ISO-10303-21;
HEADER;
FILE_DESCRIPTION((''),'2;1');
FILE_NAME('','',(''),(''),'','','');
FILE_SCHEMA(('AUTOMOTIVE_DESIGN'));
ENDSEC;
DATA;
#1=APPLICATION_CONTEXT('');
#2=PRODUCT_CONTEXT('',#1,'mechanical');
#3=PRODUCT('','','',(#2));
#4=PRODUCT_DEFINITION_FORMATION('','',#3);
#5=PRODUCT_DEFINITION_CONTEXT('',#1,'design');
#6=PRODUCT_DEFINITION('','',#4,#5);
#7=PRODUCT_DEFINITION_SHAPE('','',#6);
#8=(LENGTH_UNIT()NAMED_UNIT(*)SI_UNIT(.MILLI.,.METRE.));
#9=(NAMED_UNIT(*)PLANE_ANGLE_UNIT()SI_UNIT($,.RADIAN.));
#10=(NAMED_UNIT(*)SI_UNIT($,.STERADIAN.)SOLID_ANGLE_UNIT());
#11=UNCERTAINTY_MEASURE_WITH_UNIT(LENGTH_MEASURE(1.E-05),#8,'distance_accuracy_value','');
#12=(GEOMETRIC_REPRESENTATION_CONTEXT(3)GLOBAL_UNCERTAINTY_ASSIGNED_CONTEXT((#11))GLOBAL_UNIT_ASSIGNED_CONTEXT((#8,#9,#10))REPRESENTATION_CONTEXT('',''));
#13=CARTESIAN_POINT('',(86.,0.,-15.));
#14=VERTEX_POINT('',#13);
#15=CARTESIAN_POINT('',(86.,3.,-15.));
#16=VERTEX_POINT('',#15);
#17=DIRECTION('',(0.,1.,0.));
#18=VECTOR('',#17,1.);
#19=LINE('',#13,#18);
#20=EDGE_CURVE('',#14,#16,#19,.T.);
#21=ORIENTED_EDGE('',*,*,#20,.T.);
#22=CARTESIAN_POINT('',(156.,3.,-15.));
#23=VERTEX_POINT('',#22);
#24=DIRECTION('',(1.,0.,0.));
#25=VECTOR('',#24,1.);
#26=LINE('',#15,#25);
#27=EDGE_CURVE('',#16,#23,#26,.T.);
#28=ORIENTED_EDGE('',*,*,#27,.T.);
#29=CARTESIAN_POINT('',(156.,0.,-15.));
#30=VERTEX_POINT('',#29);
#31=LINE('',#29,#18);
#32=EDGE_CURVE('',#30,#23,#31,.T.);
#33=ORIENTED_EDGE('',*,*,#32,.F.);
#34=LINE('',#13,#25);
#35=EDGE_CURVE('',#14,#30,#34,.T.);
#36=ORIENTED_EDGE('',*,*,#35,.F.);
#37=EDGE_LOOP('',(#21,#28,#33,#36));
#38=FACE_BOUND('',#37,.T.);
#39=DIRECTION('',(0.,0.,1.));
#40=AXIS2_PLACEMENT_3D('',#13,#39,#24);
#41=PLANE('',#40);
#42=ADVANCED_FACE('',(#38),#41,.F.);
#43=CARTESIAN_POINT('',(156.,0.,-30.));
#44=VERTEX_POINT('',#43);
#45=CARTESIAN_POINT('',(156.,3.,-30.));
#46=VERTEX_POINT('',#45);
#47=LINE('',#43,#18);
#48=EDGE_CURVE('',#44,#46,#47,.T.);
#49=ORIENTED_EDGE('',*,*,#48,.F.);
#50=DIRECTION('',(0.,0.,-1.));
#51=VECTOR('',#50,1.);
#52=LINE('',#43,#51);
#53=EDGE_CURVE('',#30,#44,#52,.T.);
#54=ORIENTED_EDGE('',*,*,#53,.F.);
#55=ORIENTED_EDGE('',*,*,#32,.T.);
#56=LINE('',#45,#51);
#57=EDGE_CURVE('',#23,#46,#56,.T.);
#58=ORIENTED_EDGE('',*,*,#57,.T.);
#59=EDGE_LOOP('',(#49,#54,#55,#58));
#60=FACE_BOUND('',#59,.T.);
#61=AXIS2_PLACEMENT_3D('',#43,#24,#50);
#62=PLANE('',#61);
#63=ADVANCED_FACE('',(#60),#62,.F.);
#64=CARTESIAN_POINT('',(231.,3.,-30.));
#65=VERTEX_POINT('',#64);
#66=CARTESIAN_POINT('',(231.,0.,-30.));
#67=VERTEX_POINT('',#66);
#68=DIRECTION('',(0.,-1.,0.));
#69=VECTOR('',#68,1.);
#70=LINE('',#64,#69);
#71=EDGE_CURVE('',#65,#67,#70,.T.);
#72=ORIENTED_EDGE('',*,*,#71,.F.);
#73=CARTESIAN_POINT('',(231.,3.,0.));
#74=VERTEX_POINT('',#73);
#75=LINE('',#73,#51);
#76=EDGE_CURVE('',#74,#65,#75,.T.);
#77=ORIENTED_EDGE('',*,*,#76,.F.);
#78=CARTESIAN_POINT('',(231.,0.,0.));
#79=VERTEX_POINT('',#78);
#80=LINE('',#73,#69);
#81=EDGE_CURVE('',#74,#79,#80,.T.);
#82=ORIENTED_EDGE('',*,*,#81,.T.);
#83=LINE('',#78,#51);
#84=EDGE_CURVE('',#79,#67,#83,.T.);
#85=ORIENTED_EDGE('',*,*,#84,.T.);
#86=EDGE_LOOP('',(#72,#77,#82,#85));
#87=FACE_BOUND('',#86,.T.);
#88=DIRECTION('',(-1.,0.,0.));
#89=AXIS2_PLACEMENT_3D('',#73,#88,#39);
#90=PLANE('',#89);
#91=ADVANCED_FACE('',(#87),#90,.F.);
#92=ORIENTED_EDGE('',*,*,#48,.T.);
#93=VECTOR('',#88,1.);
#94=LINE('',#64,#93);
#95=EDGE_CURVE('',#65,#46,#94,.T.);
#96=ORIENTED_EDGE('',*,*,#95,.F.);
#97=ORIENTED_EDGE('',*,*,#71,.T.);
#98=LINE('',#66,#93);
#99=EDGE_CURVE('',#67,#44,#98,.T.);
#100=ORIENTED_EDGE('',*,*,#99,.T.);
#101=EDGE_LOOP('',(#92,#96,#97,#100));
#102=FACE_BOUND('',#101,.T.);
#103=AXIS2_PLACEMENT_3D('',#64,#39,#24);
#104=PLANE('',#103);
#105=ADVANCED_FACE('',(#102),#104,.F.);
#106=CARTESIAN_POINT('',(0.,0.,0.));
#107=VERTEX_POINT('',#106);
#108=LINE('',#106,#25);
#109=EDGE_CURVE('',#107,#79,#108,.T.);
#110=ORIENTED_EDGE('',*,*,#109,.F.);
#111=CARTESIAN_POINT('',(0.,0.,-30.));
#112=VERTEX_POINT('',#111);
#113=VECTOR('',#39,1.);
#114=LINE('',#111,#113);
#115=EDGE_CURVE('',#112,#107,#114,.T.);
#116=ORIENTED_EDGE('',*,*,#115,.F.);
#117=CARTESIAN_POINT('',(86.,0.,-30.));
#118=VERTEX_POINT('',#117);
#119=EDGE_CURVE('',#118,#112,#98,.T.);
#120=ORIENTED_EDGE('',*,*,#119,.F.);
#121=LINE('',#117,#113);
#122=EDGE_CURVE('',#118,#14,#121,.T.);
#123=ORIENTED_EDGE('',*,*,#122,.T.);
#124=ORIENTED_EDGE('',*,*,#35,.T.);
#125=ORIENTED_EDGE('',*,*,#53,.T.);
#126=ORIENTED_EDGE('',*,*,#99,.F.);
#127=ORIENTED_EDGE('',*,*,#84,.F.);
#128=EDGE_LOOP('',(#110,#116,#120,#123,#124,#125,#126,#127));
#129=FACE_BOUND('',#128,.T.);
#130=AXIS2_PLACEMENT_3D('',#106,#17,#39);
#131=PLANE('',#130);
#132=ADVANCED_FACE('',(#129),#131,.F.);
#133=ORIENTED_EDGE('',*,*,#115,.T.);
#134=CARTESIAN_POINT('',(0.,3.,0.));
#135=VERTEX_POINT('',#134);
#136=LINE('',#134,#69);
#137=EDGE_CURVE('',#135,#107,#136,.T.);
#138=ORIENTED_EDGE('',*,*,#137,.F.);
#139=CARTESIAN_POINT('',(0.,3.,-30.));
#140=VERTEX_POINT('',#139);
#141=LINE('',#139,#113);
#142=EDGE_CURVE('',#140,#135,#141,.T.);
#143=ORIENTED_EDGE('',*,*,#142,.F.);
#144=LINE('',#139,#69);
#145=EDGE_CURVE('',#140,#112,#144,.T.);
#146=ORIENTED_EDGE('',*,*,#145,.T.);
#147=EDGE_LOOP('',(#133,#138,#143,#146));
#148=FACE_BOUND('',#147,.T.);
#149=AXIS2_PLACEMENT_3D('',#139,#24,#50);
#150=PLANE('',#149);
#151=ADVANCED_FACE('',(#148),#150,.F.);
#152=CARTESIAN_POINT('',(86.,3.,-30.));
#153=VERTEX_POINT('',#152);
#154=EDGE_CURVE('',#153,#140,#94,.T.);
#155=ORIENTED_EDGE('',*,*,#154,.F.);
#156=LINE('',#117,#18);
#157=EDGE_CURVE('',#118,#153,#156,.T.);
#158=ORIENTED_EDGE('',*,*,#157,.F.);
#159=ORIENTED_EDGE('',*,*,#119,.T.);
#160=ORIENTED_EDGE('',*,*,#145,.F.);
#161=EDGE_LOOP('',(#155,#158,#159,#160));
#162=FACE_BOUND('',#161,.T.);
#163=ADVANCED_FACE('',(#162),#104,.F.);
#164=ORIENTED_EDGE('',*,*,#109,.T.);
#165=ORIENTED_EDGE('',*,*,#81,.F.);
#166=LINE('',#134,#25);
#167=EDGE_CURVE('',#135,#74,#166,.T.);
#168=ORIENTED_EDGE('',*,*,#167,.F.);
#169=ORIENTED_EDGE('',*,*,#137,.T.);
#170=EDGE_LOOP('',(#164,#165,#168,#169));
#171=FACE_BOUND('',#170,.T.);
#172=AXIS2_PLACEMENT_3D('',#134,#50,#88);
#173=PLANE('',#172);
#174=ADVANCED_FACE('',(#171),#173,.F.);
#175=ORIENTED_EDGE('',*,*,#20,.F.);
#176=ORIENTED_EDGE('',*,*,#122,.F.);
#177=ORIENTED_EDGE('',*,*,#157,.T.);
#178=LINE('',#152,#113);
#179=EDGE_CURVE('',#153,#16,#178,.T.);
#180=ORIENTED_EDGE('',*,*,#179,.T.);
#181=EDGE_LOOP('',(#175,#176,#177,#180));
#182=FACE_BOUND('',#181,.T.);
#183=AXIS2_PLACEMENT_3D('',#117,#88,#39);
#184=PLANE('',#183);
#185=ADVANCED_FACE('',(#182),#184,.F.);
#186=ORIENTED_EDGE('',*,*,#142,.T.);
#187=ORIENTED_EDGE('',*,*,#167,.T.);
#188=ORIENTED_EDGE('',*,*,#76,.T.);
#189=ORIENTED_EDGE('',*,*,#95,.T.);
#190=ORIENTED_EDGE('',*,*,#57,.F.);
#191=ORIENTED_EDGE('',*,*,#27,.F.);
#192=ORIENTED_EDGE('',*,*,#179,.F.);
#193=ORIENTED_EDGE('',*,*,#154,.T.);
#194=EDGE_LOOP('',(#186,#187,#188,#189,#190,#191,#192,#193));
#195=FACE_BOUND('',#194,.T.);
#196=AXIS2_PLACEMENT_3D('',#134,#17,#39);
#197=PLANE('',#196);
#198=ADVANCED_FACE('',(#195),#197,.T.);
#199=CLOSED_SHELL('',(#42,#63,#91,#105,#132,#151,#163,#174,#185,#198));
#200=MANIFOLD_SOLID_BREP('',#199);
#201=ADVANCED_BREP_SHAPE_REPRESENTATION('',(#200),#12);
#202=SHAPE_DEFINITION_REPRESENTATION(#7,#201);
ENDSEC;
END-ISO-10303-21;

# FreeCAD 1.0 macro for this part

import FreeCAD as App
import Part
import Sketcher


def add_polygon(sketch, points):
    """Adds a closed chain of lines whose ends are joined by coincident constraints."""
    first, n = sketch.GeometryCount, len(points)
    for a, b in zip(points, points[1:] + points[:1]):
        sketch.addGeometry(Part.LineSegment(App.Vector(*a, 0), App.Vector(*b, 0)), False)
    for i in range(n):
        sketch.addConstraint(Sketcher.Constraint("Coincident", first + i, 2, first + (i + 1) % n, 1))

doc = App.newDocument("Part")
body = doc.addObject("PartDesign::Body", "Body")

sketch1 = body.newObject("Sketcher::SketchObject", "Sketch")
sketch1.AttachmentSupport = (doc.getObject("XZ_Plane"), [""])
sketch1.MapMode = "FlatFace"
add_polygon(sketch1, [(0, -30), (0, 0), (231, 0), (231, -30)])
sketch1.addConstraint([
    Sketcher.Constraint("Vertical", 0),
    Sketcher.Constraint("Horizontal", 1),
    Sketcher.Constraint("Vertical", 2),
    Sketcher.Constraint("Horizontal", 3),
    Sketcher.Constraint("Coincident", 0, 2, -1, 1),
    Sketcher.Constraint("DistanceX", 1, 1, 1, 2, 231.0),
    Sketcher.Constraint("DistanceY", 0, 1, 0, 2, 30.0),
])
pad1 = body.newObject("PartDesign::Pad", "Pad")
pad1.Profile = sketch1
pad1.Length = 3
pad1.Reversed = True

sketch2 = body.newObject("Sketcher::SketchObject", "Sketch001")
sketch2.AttachmentSupport = (doc.getObject("XZ_Plane"), [""])
sketch2.MapMode = "FlatFace"
sketch2.AttachmentOffset = App.Placement(App.Vector(0, 0, -3), App.Rotation())
add_polygon(sketch2, [(86, -30), (86, -15), (156, -15), (156, -30)])
sketch2.addConstraint([
    Sketcher.Constraint("Vertical", 0),
    Sketcher.Constraint("Horizontal", 1),
    Sketcher.Constraint("Vertical", 2),
    Sketcher.Constraint("Horizontal", 3),
    Sketcher.Constraint("DistanceX", 1, 1, 1, 2, 70.0),
    Sketcher.Constraint("DistanceY", 0, 1, 0, 2, 15.0),
    Sketcher.Constraint("DistanceX", -1, 1, 0, 2, 86.0),
    Sketcher.Constraint("DistanceY", 0, 2, -1, 1, 15.0),
])
pocket1 = body.newObject("PartDesign::Pocket", "Pocket")
pocket1.Profile = sketch2
pocket1.Type = "ThroughAll"
pocket1.Reversed = True

doc.recompute()
